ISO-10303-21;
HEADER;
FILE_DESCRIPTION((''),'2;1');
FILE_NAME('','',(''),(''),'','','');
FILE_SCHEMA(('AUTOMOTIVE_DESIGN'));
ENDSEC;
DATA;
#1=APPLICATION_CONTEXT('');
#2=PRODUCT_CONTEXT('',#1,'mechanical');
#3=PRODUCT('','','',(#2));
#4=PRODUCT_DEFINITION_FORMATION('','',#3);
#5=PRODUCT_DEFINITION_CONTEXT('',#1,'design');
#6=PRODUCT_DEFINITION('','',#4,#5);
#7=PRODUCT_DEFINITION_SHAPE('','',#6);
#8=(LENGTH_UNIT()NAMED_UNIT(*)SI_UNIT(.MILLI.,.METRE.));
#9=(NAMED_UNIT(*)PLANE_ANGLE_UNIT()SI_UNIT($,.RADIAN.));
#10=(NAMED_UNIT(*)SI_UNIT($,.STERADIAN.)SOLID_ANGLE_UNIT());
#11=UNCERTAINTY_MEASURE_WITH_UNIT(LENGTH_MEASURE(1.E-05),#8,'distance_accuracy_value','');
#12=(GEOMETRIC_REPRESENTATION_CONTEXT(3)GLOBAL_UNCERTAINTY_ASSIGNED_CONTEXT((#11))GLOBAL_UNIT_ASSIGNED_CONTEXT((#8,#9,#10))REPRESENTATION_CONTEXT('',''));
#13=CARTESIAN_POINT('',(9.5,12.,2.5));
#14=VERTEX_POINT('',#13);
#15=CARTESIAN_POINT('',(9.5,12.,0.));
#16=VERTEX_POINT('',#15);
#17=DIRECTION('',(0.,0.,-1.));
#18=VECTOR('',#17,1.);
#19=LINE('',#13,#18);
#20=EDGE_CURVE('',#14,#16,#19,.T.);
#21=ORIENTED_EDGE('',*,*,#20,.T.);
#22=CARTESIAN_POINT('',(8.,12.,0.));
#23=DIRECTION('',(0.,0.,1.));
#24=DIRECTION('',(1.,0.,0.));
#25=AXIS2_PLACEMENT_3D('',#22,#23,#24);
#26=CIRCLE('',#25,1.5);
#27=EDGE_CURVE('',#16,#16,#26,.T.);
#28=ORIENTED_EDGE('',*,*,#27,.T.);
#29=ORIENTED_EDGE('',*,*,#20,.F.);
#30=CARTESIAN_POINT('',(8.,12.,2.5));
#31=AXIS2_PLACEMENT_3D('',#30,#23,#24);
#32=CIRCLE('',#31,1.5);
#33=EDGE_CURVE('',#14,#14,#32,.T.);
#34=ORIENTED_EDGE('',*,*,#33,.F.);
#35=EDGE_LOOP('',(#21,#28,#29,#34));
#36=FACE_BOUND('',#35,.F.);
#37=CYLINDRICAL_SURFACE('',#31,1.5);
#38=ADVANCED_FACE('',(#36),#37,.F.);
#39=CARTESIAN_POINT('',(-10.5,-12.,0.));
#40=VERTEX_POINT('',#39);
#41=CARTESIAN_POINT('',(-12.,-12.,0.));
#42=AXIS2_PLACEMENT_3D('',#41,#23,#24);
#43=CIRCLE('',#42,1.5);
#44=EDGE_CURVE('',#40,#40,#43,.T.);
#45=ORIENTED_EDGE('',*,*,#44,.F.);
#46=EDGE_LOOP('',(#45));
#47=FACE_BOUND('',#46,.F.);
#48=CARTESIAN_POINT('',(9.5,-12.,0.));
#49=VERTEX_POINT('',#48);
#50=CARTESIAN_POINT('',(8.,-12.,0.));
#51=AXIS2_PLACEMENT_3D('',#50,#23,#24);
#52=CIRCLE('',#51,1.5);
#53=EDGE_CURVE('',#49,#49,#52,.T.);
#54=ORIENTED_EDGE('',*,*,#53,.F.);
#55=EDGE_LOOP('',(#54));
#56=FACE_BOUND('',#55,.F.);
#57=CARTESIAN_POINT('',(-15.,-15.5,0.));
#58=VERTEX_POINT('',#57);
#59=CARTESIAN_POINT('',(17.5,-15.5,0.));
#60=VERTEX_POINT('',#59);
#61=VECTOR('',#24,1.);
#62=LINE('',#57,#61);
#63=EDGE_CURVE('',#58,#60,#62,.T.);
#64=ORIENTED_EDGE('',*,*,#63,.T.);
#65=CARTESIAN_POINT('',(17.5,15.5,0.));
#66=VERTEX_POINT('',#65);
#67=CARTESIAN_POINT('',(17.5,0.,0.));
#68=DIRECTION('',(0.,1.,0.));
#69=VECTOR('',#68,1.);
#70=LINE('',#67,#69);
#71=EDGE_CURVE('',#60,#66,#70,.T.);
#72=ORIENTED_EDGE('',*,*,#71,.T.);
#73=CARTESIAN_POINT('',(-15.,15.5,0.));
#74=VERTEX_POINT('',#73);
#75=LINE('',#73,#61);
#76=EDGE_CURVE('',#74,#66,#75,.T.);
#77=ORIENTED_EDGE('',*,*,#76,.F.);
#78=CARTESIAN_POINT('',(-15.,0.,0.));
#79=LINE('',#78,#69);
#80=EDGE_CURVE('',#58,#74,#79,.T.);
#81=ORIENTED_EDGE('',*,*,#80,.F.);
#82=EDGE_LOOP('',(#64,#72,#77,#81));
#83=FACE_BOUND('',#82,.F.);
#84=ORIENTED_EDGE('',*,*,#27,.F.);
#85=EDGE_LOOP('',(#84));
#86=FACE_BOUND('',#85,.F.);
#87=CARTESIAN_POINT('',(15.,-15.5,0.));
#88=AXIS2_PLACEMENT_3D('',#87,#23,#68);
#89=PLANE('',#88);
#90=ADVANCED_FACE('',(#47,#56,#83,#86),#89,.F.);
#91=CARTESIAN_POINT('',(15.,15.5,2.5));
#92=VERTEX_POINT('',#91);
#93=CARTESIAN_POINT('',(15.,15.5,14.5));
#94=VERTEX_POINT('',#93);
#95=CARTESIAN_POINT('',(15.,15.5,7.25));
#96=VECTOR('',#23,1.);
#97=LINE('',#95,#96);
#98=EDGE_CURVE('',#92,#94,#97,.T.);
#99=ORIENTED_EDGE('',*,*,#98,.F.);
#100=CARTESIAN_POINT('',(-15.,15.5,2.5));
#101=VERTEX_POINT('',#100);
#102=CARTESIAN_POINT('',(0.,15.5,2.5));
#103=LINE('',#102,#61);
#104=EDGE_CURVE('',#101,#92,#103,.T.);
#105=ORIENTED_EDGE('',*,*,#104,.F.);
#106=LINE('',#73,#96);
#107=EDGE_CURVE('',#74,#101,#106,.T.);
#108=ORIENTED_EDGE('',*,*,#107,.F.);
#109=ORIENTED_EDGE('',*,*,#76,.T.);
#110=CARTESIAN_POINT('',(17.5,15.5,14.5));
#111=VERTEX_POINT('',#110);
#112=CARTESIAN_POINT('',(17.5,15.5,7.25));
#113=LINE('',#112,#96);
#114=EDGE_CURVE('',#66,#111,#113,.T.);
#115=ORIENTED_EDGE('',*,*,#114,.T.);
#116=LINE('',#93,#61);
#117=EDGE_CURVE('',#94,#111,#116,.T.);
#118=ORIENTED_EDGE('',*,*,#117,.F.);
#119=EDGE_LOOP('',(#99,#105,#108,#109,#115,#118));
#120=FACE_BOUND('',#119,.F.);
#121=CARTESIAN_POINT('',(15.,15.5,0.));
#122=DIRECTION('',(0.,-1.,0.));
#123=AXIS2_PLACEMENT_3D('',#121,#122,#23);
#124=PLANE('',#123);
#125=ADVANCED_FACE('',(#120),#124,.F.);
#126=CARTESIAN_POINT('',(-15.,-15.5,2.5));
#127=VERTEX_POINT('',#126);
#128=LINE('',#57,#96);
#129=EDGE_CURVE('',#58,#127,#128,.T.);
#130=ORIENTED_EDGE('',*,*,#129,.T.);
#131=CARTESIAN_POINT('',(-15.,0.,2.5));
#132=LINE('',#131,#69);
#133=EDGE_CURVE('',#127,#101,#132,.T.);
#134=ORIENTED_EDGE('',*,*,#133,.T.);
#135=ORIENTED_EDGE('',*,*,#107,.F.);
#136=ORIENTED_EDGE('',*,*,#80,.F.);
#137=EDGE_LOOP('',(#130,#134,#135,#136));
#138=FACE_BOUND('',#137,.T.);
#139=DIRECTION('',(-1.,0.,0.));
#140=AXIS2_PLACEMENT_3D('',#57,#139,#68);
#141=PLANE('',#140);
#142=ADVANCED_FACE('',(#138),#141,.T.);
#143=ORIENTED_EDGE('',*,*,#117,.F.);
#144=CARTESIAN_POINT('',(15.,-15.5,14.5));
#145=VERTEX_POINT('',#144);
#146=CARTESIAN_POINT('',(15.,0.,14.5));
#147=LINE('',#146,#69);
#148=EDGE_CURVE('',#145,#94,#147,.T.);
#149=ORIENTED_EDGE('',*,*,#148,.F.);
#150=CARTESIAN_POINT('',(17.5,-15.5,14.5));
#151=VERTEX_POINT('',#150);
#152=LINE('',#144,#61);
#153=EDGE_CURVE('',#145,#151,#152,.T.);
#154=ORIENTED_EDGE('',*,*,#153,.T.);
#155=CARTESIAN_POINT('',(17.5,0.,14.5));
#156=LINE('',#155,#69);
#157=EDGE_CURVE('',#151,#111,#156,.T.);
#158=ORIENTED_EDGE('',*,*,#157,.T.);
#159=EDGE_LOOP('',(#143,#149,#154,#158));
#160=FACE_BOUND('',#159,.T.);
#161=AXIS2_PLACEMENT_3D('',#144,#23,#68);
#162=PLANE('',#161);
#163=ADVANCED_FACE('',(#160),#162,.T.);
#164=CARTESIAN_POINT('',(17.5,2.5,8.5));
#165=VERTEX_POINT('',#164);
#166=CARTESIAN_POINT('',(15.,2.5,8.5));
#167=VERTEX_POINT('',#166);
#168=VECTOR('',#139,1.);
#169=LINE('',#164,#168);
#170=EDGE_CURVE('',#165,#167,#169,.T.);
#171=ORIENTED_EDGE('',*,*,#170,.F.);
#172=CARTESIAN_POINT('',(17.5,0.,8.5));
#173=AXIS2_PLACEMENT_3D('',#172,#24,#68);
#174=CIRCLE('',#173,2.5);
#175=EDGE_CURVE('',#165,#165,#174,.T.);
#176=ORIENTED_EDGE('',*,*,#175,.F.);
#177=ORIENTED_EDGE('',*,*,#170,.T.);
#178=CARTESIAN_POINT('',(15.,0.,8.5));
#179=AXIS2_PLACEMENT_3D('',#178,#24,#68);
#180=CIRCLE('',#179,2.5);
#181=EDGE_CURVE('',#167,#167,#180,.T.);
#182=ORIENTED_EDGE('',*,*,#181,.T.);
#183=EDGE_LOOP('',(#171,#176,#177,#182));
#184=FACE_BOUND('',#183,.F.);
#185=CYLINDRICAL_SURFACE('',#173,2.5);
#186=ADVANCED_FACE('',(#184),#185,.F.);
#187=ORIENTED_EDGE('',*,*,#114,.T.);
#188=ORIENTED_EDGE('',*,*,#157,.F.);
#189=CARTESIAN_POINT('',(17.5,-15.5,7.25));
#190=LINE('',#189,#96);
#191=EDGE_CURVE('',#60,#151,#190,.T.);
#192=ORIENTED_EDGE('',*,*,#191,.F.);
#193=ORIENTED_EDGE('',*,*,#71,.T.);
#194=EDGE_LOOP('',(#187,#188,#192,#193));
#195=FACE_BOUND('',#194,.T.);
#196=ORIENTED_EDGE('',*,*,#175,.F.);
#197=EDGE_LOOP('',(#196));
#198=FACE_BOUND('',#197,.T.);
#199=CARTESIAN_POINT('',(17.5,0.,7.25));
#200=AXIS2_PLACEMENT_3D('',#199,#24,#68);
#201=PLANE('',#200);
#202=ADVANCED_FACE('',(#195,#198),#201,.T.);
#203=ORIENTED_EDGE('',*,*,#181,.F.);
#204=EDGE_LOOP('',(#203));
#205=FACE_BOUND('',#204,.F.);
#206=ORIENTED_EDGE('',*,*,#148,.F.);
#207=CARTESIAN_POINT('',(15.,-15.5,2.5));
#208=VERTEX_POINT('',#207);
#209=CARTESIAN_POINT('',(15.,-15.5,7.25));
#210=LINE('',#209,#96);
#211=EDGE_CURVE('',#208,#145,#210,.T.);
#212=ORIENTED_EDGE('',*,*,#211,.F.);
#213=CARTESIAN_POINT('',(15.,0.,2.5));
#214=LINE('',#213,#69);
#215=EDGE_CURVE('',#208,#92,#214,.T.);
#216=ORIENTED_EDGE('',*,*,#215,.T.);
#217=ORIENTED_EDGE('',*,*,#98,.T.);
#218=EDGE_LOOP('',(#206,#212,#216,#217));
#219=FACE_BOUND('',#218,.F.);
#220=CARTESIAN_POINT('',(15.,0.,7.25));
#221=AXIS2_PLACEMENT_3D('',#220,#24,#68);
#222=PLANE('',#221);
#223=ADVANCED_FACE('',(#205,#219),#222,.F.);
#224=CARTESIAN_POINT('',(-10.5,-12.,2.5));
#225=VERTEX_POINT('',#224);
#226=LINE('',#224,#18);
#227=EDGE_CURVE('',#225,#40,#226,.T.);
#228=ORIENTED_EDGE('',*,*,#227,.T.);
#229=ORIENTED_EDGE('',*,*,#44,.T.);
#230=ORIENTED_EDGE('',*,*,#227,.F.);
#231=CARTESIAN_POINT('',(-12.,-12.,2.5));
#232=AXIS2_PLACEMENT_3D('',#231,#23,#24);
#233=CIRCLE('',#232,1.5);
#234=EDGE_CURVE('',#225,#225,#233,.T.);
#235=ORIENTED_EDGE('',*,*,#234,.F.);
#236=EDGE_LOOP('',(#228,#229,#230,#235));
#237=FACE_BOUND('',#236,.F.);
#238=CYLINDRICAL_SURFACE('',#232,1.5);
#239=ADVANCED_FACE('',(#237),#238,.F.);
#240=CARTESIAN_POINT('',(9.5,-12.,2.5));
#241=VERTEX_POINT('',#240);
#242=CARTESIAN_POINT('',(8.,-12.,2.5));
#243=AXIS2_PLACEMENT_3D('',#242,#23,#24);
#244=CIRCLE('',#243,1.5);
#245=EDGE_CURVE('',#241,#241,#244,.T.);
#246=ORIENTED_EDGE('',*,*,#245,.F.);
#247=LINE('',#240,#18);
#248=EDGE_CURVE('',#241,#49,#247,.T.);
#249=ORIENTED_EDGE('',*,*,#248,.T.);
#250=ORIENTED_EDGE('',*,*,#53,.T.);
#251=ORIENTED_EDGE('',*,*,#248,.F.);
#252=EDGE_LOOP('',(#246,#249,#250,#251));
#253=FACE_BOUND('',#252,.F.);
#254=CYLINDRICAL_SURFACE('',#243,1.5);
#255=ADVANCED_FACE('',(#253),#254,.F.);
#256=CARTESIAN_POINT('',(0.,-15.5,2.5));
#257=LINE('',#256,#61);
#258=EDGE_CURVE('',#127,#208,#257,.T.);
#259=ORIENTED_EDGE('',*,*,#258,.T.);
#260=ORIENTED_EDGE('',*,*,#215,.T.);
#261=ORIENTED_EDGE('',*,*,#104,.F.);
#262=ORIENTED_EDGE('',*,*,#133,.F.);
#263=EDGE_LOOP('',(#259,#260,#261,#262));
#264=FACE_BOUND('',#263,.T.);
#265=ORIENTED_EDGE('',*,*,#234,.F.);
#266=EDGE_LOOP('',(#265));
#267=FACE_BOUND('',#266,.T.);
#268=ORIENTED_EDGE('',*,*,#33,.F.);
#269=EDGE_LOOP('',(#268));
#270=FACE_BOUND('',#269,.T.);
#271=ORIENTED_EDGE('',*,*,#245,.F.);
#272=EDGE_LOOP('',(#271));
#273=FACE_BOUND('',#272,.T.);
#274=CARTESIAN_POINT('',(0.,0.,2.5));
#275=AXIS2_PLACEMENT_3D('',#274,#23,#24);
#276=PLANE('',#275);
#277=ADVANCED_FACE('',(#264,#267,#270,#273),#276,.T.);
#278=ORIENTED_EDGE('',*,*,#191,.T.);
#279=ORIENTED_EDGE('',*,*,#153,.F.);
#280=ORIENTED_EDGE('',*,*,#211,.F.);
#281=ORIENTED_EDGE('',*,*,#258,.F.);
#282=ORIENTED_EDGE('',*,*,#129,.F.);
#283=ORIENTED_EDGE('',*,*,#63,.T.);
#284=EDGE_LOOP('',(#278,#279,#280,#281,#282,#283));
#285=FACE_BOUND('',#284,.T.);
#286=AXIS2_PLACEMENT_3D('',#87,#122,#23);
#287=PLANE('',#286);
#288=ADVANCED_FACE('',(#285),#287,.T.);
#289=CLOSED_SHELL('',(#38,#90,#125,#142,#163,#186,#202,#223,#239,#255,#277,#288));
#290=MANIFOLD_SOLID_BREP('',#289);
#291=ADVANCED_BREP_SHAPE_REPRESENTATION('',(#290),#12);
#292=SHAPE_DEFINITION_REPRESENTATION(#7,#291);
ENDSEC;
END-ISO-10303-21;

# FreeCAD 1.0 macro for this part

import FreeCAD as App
import Part
import Sketcher

V = App.Vector

doc = App.newDocument("Part")
body = doc.addObject("PartDesign::Body", "Body")

# Sketch on XY plane
sketch1 = body.newObject("Sketcher::SketchObject", "Sketch")
sketch1.AttachmentSupport = (doc.getObject("XY_Plane"), [""])
sketch1.MapMode = "FlatFace"
sketch1.addGeometry(Part.LineSegment(V(-15, 16, 0), V(-15, -16, 0)), False)
sketch1.addGeometry(Part.LineSegment(V(-15, -16, 0), V(15, -16, 0)), False)
sketch1.addGeometry(Part.LineSegment(V(15, -16, 0), V(15, 16, 0)), False)
sketch1.addGeometry(Part.LineSegment(V(15, 16, 0), V(-15, 16, 0)), False)
sketch1.addConstraint(Sketcher.Constraint("Coincident", 0, 2, 1, 1))
sketch1.addConstraint(Sketcher.Constraint("Coincident", 1, 2, 2, 1))
sketch1.addConstraint(Sketcher.Constraint("Coincident", 2, 2, 3, 1))
sketch1.addConstraint(Sketcher.Constraint("Coincident", 3, 2, 0, 1))
sketch1.addConstraint(Sketcher.Constraint("Vertical", 0))
sketch1.addConstraint(Sketcher.Constraint("Horizontal", 1))
sketch1.addConstraint(Sketcher.Constraint("Vertical", 2))
sketch1.addConstraint(Sketcher.Constraint("Horizontal", 3))
sketch1.addConstraint(Sketcher.Constraint("Symmetric", 0, 2, 2, 2, -1, 1))
sketch1.addConstraint(Sketcher.Constraint("DistanceX", 1, 1, 1, 2, 30.0))
sketch1.addConstraint(Sketcher.Constraint("DistanceY", 0, 2, 0, 1, 31.0))
pad1 = body.newObject("PartDesign::Pad", "Pad")
pad1.Profile = sketch1
pad1.Length = 2.5

# Sketch on XY plane
sketch2 = body.newObject("Sketcher::SketchObject", "Sketch001")
sketch2.AttachmentSupport = (doc.getObject("XY_Plane"), [""])
sketch2.MapMode = "FlatFace"
sketch2.AttachmentOffset = App.Placement(V(0, 0, 2.5), App.Rotation())
sketch2.addGeometry(Part.Circle(V(-12, -12, 0), V(0, 0, 1), 1.5), False)
sketch2.addGeometry(Part.Circle(V(8, -12, 0), V(0, 0, 1), 1.5), False)
sketch2.addGeometry(Part.Circle(V(8, 12, 0), V(0, 0, 1), 1.5), False)
sketch2.addConstraint(Sketcher.Constraint("Equal", 0, 1))
sketch2.addConstraint(Sketcher.Constraint("Equal", 1, 2))
sketch2.addConstraint(Sketcher.Constraint("Symmetric", 1, 3, 2, 3, -1))
sketch2.addConstraint(Sketcher.Constraint("Horizontal", 0, 3, 1, 3))
sketch2.addConstraint(Sketcher.Constraint("Diameter", 0, 3.0))
sketch2.addConstraint(Sketcher.Constraint("DistanceX", 0, 3, -1, 1, 12.0))
sketch2.addConstraint(Sketcher.Constraint("DistanceY", 0, 3, -1, 1, 12.0))
sketch2.addConstraint(Sketcher.Constraint("DistanceX", -1, 1, 1, 3, 8.0))
pocket1 = body.newObject("PartDesign::Pocket", "Pocket")
pocket1.Profile = sketch2
pocket1.Type = "ThroughAll"

# Sketch on YZ plane
sketch3 = body.newObject("Sketcher::SketchObject", "Sketch002")
sketch3.AttachmentSupport = (doc.getObject("YZ_Plane"), [""])
sketch3.MapMode = "FlatFace"
sketch3.AttachmentOffset = App.Placement(V(0, 0, 15), App.Rotation())
sketch3.addGeometry(Part.LineSegment(V(-16, 14, 0), V(-16, 0, 0)), False)
sketch3.addGeometry(Part.LineSegment(V(-16, 0, 0), V(16, 0, 0)), False)
sketch3.addGeometry(Part.LineSegment(V(16, 0, 0), V(16, 14, 0)), False)
sketch3.addGeometry(Part.LineSegment(V(16, 14, 0), V(-16, 14, 0)), False)
sketch3.addConstraint(Sketcher.Constraint("Coincident", 0, 2, 1, 1))
sketch3.addConstraint(Sketcher.Constraint("Coincident", 1, 2, 2, 1))
sketch3.addConstraint(Sketcher.Constraint("Coincident", 2, 2, 3, 1))
sketch3.addConstraint(Sketcher.Constraint("Coincident", 3, 2, 0, 1))
sketch3.addConstraint(Sketcher.Constraint("Vertical", 0))
sketch3.addConstraint(Sketcher.Constraint("Horizontal", 1))
sketch3.addConstraint(Sketcher.Constraint("Vertical", 2))
sketch3.addConstraint(Sketcher.Constraint("Horizontal", 3))
sketch3.addConstraint(Sketcher.Constraint("Symmetric", 0, 2, 1, 2, -1, 1))
sketch3.addConstraint(Sketcher.Constraint("DistanceX", 1, 1, 1, 2, 31.0))
sketch3.addConstraint(Sketcher.Constraint("DistanceY", 0, 2, 0, 1, 14.5))
pad2 = body.newObject("PartDesign::Pad", "Pad001")
pad2.Profile = sketch3
pad2.Length = 2.5

# Sketch on YZ plane
sketch4 = body.newObject("Sketcher::SketchObject", "Sketch003")
sketch4.AttachmentSupport = (doc.getObject("YZ_Plane"), [""])
sketch4.MapMode = "FlatFace"
sketch4.AttachmentOffset = App.Placement(V(0, 0, 17.5), App.Rotation())
sketch4.addGeometry(Part.Circle(V(0, 8.5, 0), V(0, 0, 1), 2.5), False)
sketch4.addConstraint(Sketcher.Constraint("PointOnObject", 0, 3, -2))
sketch4.addConstraint(Sketcher.Constraint("Diameter", 0, 5.0))
sketch4.addConstraint(Sketcher.Constraint("DistanceY", -1, 1, 0, 3, 8.5))
pocket2 = body.newObject("PartDesign::Pocket", "Pocket001")
pocket2.Profile = sketch4
pocket2.Type = "ThroughAll"

doc.recompute()
